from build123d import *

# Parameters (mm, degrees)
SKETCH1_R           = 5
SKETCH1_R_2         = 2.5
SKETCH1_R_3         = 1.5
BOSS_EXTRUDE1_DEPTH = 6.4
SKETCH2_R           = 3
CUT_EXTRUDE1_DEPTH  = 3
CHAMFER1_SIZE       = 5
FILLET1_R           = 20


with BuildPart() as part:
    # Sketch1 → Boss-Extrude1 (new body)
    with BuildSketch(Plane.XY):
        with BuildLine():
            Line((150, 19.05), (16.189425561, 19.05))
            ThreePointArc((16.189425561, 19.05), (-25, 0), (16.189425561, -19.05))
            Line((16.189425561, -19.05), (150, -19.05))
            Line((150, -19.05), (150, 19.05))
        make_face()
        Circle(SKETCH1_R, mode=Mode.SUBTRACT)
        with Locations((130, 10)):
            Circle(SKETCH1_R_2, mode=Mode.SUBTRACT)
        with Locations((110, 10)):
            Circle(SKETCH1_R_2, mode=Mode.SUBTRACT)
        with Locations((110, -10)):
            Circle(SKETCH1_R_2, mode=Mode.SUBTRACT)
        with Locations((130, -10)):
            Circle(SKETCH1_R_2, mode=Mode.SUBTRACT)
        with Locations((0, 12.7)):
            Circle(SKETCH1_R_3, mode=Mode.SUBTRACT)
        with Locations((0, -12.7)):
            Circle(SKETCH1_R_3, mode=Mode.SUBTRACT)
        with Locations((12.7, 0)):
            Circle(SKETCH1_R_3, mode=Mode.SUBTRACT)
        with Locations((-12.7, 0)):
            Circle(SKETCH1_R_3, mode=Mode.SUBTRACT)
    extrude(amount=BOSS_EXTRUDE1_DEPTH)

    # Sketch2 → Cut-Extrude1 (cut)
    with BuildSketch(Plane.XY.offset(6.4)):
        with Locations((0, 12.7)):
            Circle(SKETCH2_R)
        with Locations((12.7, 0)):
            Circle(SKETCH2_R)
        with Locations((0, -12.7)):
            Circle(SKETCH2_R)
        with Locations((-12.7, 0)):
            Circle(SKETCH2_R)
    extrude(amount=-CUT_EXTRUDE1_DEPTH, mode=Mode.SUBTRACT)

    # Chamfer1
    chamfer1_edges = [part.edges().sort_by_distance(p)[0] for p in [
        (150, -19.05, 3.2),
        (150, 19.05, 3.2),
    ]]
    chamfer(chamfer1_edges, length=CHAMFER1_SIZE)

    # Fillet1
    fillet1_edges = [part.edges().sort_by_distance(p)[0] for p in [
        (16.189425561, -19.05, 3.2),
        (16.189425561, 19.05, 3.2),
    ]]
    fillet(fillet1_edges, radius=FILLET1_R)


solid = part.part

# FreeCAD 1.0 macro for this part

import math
import FreeCAD as App
import Part
import Sketcher
from FreeCAD import Vector
Q = App.Units.Quantity


def edges_at(feature, points):
    """Names of the edges that pass closest to the given points."""
    edges = feature.Shape.Edges
    near = lambda p: min(range(len(edges)), key=lambda i: edges[i].distToShape(Part.Vertex(*p))[0])
    return sorted({f"Edge{near(p) + 1}" for p in points})

doc = App.newDocument("Part")
params = doc.addObject("Spreadsheet::Sheet", "Params")
for row, (alias, value) in enumerate([
    ("sketch1_diameter", "3 mm"),
    ("sketch1_diameter2", "5 mm"),
    ("sketch1_diameter3", "10 mm"),
    ("sketch1_radius", "25 mm"),
    ("sketch1_height", "38.1 mm"),
    ("pad1_length", "6.4 mm"),
    ("sketch2_diameter", "6 mm"),
    ("pocket1_length", "3 mm"),
    ("chamfer_size", "5 mm"),
    ("fillet_radius", "20 mm"),
], start=1):
    params.set(f"A{row}", alias)
    params.set(f"B{row}", "=" + value)
    params.setAlias(f"B{row}", alias)

body = doc.addObject("PartDesign::Body", "Body")

# Sketch on XY plane
sketch1 = doc.addObject("Sketcher::SketchObject", "Sketch")
body.addObject(sketch1)
sketch1.AttachmentSupport = (doc.XY_Plane, [""])
sketch1.MapMode = "FlatFace"
sketch1.addGeometry(Part.LineSegment(Vector(150, 19.1, 0), Vector(16.2, 19.1, 0)), False)
sketch1.addGeometry(Part.ArcOfCircle(Part.Circle(Vector(0, 0, 0), Vector(0, 0, 1), 25), math.radians(50), math.radians(310)), False)
sketch1.addGeometry(Part.LineSegment(Vector(16.2, -19.1, 0), Vector(150, -19.1, 0)), False)
sketch1.addGeometry(Part.LineSegment(Vector(150, -19.1, 0), Vector(150, 19.1, 0)), False)
sketch1.addGeometry(Part.Circle(Vector(0, -12.7, 0), Vector(0, 0, 1), 1.5), False)
sketch1.addGeometry(Part.Circle(Vector(110, -10, 0), Vector(0, 0, 1), 2.5), False)
sketch1.addGeometry(Part.Circle(Vector(130, -10, 0), Vector(0, 0, 1), 2.5), False)
sketch1.addGeometry(Part.Circle(Vector(-12.7, 0, 0), Vector(0, 0, 1), 1.5), False)
sketch1.addGeometry(Part.Circle(Vector(0, 0, 0), Vector(0, 0, 1), 5), False)
sketch1.addGeometry(Part.Circle(Vector(12.7, 0, 0), Vector(0, 0, 1), 1.5), False)
sketch1.addGeometry(Part.Circle(Vector(0, 12.7, 0), Vector(0, 0, 1), 1.5), False)
sketch1.addGeometry(Part.Circle(Vector(110, 10, 0), Vector(0, 0, 1), 2.5), False)
sketch1.addGeometry(Part.Circle(Vector(130, 10, 0), Vector(0, 0, 1), 2.5), False)
sketch1.addConstraint(Sketcher.Constraint("Coincident", 0, 2, 1, 1))
sketch1.addConstraint(Sketcher.Constraint("Coincident", 1, 2, 2, 1))
sketch1.addConstraint(Sketcher.Constraint("Coincident", 2, 2, 3, 1))
sketch1.addConstraint(Sketcher.Constraint("Coincident", 3, 2, 0, 1))
sketch1.addConstraint(Sketcher.Constraint("Horizontal", 0))
sketch1.addConstraint(Sketcher.Constraint("Horizontal", 2))
sketch1.addConstraint(Sketcher.Constraint("Vertical", 3))
sketch1.addConstraint(Sketcher.Constraint("Coincident", 1, 3, -1, 1))
sketch1.addConstraint(Sketcher.Constraint("Coincident", 8, 3, -1, 1))
sketch1.addConstraint(Sketcher.Constraint("Equal", 5, 6))
sketch1.addConstraint(Sketcher.Constraint("Equal", 4, 7))
sketch1.addConstraint(Sketcher.Constraint("Equal", 7, 9))
sketch1.addConstraint(Sketcher.Constraint("Equal", 9, 10))
sketch1.addConstraint(Sketcher.Constraint("Equal", 6, 11))
sketch1.addConstraint(Sketcher.Constraint("Equal", 11, 12))
sketch1.addConstraint(Sketcher.Constraint("Symmetric", 7, 3, 9, 3, -1, 1))
sketch1.addConstraint(Sketcher.Constraint("Symmetric", 4, 3, 10, 3, -1, 1))
sketch1.addConstraint(Sketcher.Constraint("Symmetric", 5, 3, 11, 3, -1))
sketch1.addConstraint(Sketcher.Constraint("Symmetric", 6, 3, 12, 3, -1))
sketch1.addConstraint(Sketcher.Constraint("PointOnObject", 4, 3, -2))
sketch1.addConstraint(Sketcher.Constraint("PointOnObject", 7, 3, -1))
sketch1.addConstraint(Sketcher.Constraint("Horizontal", 5, 3, 6, 3))
sketch1.addConstraint(Sketcher.Constraint("Vertical", 0, 2, 1, 2))
sketch1.addConstraint(Sketcher.Constraint("Diameter", 4, Q("3 mm")))
sketch1.addConstraint(Sketcher.Constraint("Diameter", 5, Q("5 mm")))
sketch1.addConstraint(Sketcher.Constraint("Diameter", 8, Q("10 mm")))
sketch1.addConstraint(Sketcher.Constraint("Radius", 1, Q("25 mm")))
sketch1.addConstraint(Sketcher.Constraint("DistanceY", 3, 1, 3, 2, Q("38.1 mm")))
sketch1.addConstraint(Sketcher.Constraint("DistanceX", -1, 1, 5, 3, Q("110 mm")))
sketch1.addConstraint(Sketcher.Constraint("DistanceY", 5, 3, -1, 1, Q("10 mm")))
sketch1.addConstraint(Sketcher.Constraint("DistanceX", -1, 1, 6, 3, Q("130 mm")))
sketch1.addConstraint(Sketcher.Constraint("DistanceX", -1, 1, 2, 2, Q("150 mm")))
sketch1.addConstraint(Sketcher.Constraint("DistanceY", 4, 3, -1, 1, Q("12.7 mm")))
sketch1.addConstraint(Sketcher.Constraint("DistanceX", 7, 3, -1, 1, Q("12.7 mm")))
sketch1.setExpression("Constraints[23]", "Params.sketch1_diameter")
sketch1.setExpression("Constraints[24]", "Params.sketch1_diameter2")
sketch1.setExpression("Constraints[25]", "Params.sketch1_diameter3")
sketch1.setExpression("Constraints[26]", "Params.sketch1_radius")
sketch1.setExpression("Constraints[27]", "Params.sketch1_height")
pad1 = doc.addObject("PartDesign::Pad", "Pad")
body.addObject(pad1)
pad1.Profile = sketch1
pad1.setExpression("Length", "Params.pad1_length")

# Sketch on XY plane
sketch2 = doc.addObject("Sketcher::SketchObject", "Sketch001")
body.addObject(sketch2)
sketch2.AttachmentSupport = (doc.XY_Plane, [""])
sketch2.MapMode = "FlatFace"
sketch2.AttachmentOffset = App.Placement(Vector(0, 0, 6.4), App.Rotation())
sketch2.addGeometry(Part.Circle(Vector(0, 12.7, 0), Vector(0, 0, 1), 3), False)
sketch2.addGeometry(Part.Circle(Vector(12.7, 0, 0), Vector(0, 0, 1), 3), False)
sketch2.addGeometry(Part.Circle(Vector(0, -12.7, 0), Vector(0, 0, 1), 3), False)
sketch2.addGeometry(Part.Circle(Vector(-12.7, 0, 0), Vector(0, 0, 1), 3), False)
sketch2.addConstraint(Sketcher.Constraint("Equal", 0, 1))
sketch2.addConstraint(Sketcher.Constraint("Equal", 1, 2))
sketch2.addConstraint(Sketcher.Constraint("Equal", 2, 3))
sketch2.addConstraint(Sketcher.Constraint("Symmetric", 0, 3, 2, 3, -1, 1))
sketch2.addConstraint(Sketcher.Constraint("Symmetric", 1, 3, 3, 3, -1, 1))
sketch2.addConstraint(Sketcher.Constraint("PointOnObject", 0, 3, -2))
sketch2.addConstraint(Sketcher.Constraint("PointOnObject", 1, 3, -1))
sketch2.addConstraint(Sketcher.Constraint("Diameter", 0, Q("6 mm")))
sketch2.addConstraint(Sketcher.Constraint("DistanceY", -1, 1, 0, 3, Q("12.7 mm")))
sketch2.addConstraint(Sketcher.Constraint("DistanceX", -1, 1, 1, 3, Q("12.7 mm")))
sketch2.setExpression("Constraints[7]", "Params.sketch2_diameter")
pocket1 = doc.addObject("PartDesign::Pocket", "Pocket")
body.addObject(pocket1)
pocket1.Profile = sketch2
pocket1.setExpression("Length", "Params.pocket1_length")
doc.recompute()

chamfer = doc.addObject("PartDesign::Chamfer", "Chamfer")
body.addObject(chamfer)
chamfer.Base = (pocket1, edges_at(pocket1, [(150, -19.05, 3.2), (150, 19.05, 3.2)]))
chamfer.setExpression("Size", "Params.chamfer_size")
doc.recompute()

fillet = doc.addObject("PartDesign::Fillet", "Fillet")
body.addObject(fillet)
fillet.Base = (chamfer, edges_at(chamfer, [(16.189, -19.05, 3.2), (16.189, 19.05, 3.2)]))
fillet.setExpression("Radius", "Params.fillet_radius")

doc.recompute()
